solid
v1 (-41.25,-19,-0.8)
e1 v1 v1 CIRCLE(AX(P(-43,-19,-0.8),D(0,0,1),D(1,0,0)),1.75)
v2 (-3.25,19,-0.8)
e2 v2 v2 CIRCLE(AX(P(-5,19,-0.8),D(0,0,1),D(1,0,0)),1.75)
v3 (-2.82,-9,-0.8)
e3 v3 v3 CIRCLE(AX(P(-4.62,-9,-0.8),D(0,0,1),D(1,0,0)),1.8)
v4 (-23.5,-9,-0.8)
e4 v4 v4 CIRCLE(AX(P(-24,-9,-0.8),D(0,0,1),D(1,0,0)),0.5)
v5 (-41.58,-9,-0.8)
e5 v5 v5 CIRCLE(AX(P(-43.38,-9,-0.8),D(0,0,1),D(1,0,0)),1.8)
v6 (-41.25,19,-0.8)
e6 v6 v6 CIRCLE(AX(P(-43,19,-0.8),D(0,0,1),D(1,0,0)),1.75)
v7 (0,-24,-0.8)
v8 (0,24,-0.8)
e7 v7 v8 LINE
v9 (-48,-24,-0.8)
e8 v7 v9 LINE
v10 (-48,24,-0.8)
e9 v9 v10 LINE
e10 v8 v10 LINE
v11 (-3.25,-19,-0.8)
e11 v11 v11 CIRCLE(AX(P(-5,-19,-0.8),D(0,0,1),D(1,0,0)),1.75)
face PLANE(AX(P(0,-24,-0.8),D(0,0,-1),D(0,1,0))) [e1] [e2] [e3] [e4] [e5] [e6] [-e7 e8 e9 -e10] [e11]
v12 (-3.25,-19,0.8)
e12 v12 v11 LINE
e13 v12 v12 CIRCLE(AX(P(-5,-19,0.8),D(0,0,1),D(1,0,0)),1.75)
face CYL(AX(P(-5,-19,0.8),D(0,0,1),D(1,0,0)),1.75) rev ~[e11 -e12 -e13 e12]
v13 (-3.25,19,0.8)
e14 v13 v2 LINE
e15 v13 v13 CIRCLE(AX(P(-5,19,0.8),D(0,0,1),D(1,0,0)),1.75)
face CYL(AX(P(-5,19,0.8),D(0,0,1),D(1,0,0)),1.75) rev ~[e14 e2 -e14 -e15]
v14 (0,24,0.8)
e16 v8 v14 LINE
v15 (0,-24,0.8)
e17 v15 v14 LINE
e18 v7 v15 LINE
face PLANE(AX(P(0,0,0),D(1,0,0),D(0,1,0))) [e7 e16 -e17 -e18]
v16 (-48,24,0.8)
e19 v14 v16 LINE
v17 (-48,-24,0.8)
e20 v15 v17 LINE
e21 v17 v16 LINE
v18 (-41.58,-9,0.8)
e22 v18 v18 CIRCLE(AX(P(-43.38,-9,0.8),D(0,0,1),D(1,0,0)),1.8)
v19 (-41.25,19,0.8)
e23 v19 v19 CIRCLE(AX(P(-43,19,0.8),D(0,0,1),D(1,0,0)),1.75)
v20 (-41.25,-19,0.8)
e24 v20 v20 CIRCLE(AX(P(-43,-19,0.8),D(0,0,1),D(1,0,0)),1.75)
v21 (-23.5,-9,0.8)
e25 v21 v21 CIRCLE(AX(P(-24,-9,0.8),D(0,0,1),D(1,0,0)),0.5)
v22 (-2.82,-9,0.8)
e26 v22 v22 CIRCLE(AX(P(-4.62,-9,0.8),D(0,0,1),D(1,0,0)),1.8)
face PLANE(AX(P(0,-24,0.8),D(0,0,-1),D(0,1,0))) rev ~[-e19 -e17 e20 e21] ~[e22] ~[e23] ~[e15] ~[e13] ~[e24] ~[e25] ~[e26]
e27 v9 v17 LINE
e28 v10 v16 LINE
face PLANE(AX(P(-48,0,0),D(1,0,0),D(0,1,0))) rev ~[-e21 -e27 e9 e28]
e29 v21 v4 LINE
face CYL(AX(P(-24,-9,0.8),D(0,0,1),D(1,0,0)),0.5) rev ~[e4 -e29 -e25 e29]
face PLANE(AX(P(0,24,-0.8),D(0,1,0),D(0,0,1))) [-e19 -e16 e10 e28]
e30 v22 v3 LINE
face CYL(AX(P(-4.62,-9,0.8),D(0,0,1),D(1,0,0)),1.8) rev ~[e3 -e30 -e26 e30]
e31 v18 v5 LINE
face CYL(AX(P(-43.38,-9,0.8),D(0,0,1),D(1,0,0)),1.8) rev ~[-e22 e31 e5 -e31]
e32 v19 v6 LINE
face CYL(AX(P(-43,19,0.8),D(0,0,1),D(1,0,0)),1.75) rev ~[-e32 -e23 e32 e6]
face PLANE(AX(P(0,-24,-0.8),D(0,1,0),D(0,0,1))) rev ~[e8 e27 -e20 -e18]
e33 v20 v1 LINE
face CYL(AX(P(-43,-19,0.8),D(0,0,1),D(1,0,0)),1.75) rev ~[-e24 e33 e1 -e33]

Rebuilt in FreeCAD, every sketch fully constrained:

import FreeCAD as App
import Part
import Sketcher

V = App.Vector
Q = App.Units.Quantity

doc = App.newDocument("Part")
params = doc.addObject("Spreadsheet::Sheet", "Params")
for row, (alias, value) in enumerate([
    ("sketch1_width", "48 mm"),
    ("sketch1_height", "1.6 mm"),
    ("pad1_length", "48 mm"),
    ("sketch2_diameter", "1 mm"),
    ("sketch2_diameter2", "3.5 mm"),
    ("sketch2_diameter3", "3.6 mm"),
    ("sketch3_diameter", "3.5 mm"),
    ("sketch3_width", "48 mm"),
    ("sketch3_width2", "20 mm"),
    ("sketch3_height", "9 mm"),
    ("pad2_length", "5 mm"),
], start=1):
    params.set(f"A{row}", alias)
    params.set(f"B{row}", "=" + value)
    params.setAlias(f"B{row}", alias)

body = doc.addObject("PartDesign::Body", "Body")

sketch1 = body.newObject("Sketcher::SketchObject", "Sketch")
sketch1.AttachmentSupport = (doc.getObject("YZ_Plane"), [""])
sketch1.MapMode = "FlatFace"
sketch1.addGeometry([
    Part.LineSegment(V(-24, 0.8, 0), V(-24, -0.8, 0)),
    Part.LineSegment(V(-24, -0.8, 0), V(24, -0.8, 0)),
    Part.LineSegment(V(24, -0.8, 0), V(24, 0.8, 0)),
    Part.LineSegment(V(24, 0.8, 0), V(-24, 0.8, 0)),
], False)
sketch1.addConstraint([
    Sketcher.Constraint("Coincident", 0, 2, 1, 1),
    Sketcher.Constraint("Coincident", 1, 2, 2, 1),
    Sketcher.Constraint("Coincident", 2, 2, 3, 1),
    Sketcher.Constraint("Coincident", 3, 2, 0, 1),
    Sketcher.Constraint("Vertical", 0),
    Sketcher.Constraint("Horizontal", 1),
    Sketcher.Constraint("Vertical", 2),
    Sketcher.Constraint("Horizontal", 3),
    Sketcher.Constraint("Symmetric", 0, 2, 2, 2, -1, 1),
    Sketcher.Constraint("DistanceX", 1, 1, 1, 2, Q("48 mm")),
    Sketcher.Constraint("DistanceY", 0, 2, 0, 1, Q("1.6 mm")),
])
sketch1.setExpression("Constraints[9]", "Params.sketch1_width")
sketch1.setExpression("Constraints[10]", "Params.sketch1_height")
pad1 = body.newObject("PartDesign::Pad", "Pad")
pad1.Profile = sketch1
pad1.setExpression("Length", "Params.pad1_length")
pad1.Reversed = True

sketch2 = body.newObject("Sketcher::SketchObject", "Sketch001")
sketch2.AttachmentSupport = (doc.getObject("XY_Plane"), [""])
sketch2.MapMode = "FlatFace"
sketch2.AttachmentOffset = App.Placement(V(0, 0, 0.8), App.Rotation())
sketch2.addGeometry([
    Part.Circle(V(-43, -19, 0), V(0, 0, 1), 1.75),
    Part.Circle(V(-43, 19, 0), V(0, 0, 1), 1.75),
    Part.Circle(V(-43.38, -9, 0), V(0, 0, 1), 1.8),
    Part.Circle(V(-4.62, -9, 0), V(0, 0, 1), 1.8),
    Part.Circle(V(-5, 19, 0), V(0, 0, 1), 1.75),
    Part.Circle(V(-5, -19, 0), V(0, 0, 1), 1.75),
    Part.Circle(V(-24, -9, 0), V(0, 0, 1), 0.5),
], False)
sketch2.addConstraint([
    Sketcher.Constraint("Equal", 0, 1),
    Sketcher.Constraint("Equal", 2, 3),
    Sketcher.Constraint("Equal", 1, 4),
    Sketcher.Constraint("Equal", 4, 5),
    Sketcher.Constraint("Symmetric", 0, 3, 1, 3, -1),
    Sketcher.Constraint("Symmetric", 4, 3, 5, 3, -1),
    Sketcher.Constraint("Horizontal", 2, 3, 3, 3),
    Sketcher.Constraint("Horizontal", 1, 3, 4, 3),
    Sketcher.Constraint("Horizontal", 3, 3, 6, 3),
    Sketcher.Constraint("Diameter", 6, Q("1 mm")),
    Sketcher.Constraint("Diameter", 0, Q("3.5 mm")),
    Sketcher.Constraint("Diameter", 2, Q("3.6 mm")),
    Sketcher.Constraint("DistanceX", 0, 3, -1, 1, Q("43 mm")),
    Sketcher.Constraint("DistanceY", 0, 3, -1, 1, Q("19 mm")),
    Sketcher.Constraint("DistanceY", 2, 3, -1, 1, Q("9 mm")),
    Sketcher.Constraint("DistanceX", 4, 3, -1, 1, Q("5 mm")),
    Sketcher.Constraint("DistanceX", 6, 3, -1, 1, Q("24 mm")),
    Sketcher.Constraint("DistanceX", 2, 3, -1, 1, Q("43.38 mm")),
    Sketcher.Constraint("DistanceX", 3, 3, -1, 1, Q("4.62 mm")),
])
sketch2.setExpression("Constraints[9]", "Params.sketch2_diameter")
sketch2.setExpression("Constraints[10]", "Params.sketch2_diameter2")
sketch2.setExpression("Constraints[11]", "Params.sketch2_diameter3")
pocket1 = body.newObject("PartDesign::Pocket", "Pocket")
pocket1.Profile = sketch2
pocket1.Type = "ThroughAll"
body2 = doc.addObject("PartDesign::Body", "Body001")

sketch3 = body2.newObject("Sketcher::SketchObject", "Sketch002")
sketch3.AttachmentSupport = (doc.getObject("XY_Plane001"), [""])
sketch3.MapMode = "FlatFace"
sketch3.addGeometry([
    Part.LineSegment(V(-24, 24, 0), V(-24, -24, 0)),
    Part.LineSegment(V(-24, -24, 0), V(24, -24, 0)),
    Part.LineSegment(V(24, -24, 0), V(24, 24, 0)),
    Part.LineSegment(V(24, 24, 0), V(-24, 24, 0)),
    Part.Circle(V(-19, -19, 0), V(0, 0, 1), 1.75),
    Part.Circle(V(19, -19, 0), V(0, 0, 1), 1.75),
    Part.Circle(V(-19, 19, 0), V(0, 0, 1), 1.75),
    Part.LineSegment(V(10, 10, 0), V(-10, 10, 0)),
    Part.LineSegment(V(-10, 10, 0), V(-10, 19, 0)),
    Part.LineSegment(V(-10, 19, 0), V(10, 19, 0)),
    Part.LineSegment(V(10, 19, 0), V(10, 10, 0)),
    Part.Circle(V(19, 19, 0), V(0, 0, 1), 1.75),
], False)
sketch3.addConstraint([
    Sketcher.Constraint("Coincident", 0, 2, 1, 1),
    Sketcher.Constraint("Coincident", 1, 2, 2, 1),
    Sketcher.Constraint("Coincident", 2, 2, 3, 1),
    Sketcher.Constraint("Coincident", 3, 2, 0, 1),
    Sketcher.Constraint("Coincident", 7, 2, 8, 1),
    Sketcher.Constraint("Coincident", 8, 2, 9, 1),
    Sketcher.Constraint("Coincident", 9, 2, 10, 1),
    Sketcher.Constraint("Coincident", 10, 2, 7, 1),
    Sketcher.Constraint("Vertical", 0),
    Sketcher.Constraint("Horizontal", 1),
    Sketcher.Constraint("Vertical", 2),
    Sketcher.Constraint("Horizontal", 3),
    Sketcher.Constraint("Horizontal", 7),
    Sketcher.Constraint("Vertical", 8),
    Sketcher.Constraint("Horizontal", 9),
    Sketcher.Constraint("Vertical", 10),
    Sketcher.Constraint("Equal", 4, 5),
    Sketcher.Constraint("Equal", 5, 6),
    Sketcher.Constraint("Equal", 6, 11),
    Sketcher.Constraint("Symmetric", 5, 3, 6, 3, -1, 1),
    Sketcher.Constraint("Symmetric", 4, 3, 11, 3, -1, 1),
    Sketcher.Constraint("Symmetric", 0, 2, 2, 2, -1, 1),
    Sketcher.Constraint("Symmetric", 4, 3, 5, 3, -2),
    Sketcher.Constraint("Horizontal", 11, 3, 8, 2),
    Sketcher.Constraint("Equal", 3, 0),
    Sketcher.Constraint("Diameter", 4, Q("3.5 mm")),
    Sketcher.Constraint("DistanceX", 1, 1, 1, 2, Q("48 mm")),
    Sketcher.Constraint("DistanceX", 7, 2, 7, 1, Q("20 mm")),
    Sketcher.Constraint("DistanceY", 8, 1, 8, 2, Q("9 mm")),
    Sketcher.Constraint("DistanceX", 4, 3, -1, 1, Q("19 mm")),
    Sketcher.Constraint("DistanceY", 4, 3, -1, 1, Q("19 mm")),
    Sketcher.Constraint("DistanceX", 7, 2, -1, 1, Q("10 mm")),
])
sketch3.setExpression("Constraints[25]", "Params.sketch3_diameter")
sketch3.setExpression("Constraints[26]", "Params.sketch3_width")
sketch3.setExpression("Constraints[27]", "Params.sketch3_width2")
sketch3.setExpression("Constraints[28]", "Params.sketch3_height")
pad2 = body2.newObject("PartDesign::Pad", "Pad001")
pad2.Profile = sketch3
pad2.setExpression("Length", "Params.pad2_length")
body2.Visibility = False

doc.recompute()
